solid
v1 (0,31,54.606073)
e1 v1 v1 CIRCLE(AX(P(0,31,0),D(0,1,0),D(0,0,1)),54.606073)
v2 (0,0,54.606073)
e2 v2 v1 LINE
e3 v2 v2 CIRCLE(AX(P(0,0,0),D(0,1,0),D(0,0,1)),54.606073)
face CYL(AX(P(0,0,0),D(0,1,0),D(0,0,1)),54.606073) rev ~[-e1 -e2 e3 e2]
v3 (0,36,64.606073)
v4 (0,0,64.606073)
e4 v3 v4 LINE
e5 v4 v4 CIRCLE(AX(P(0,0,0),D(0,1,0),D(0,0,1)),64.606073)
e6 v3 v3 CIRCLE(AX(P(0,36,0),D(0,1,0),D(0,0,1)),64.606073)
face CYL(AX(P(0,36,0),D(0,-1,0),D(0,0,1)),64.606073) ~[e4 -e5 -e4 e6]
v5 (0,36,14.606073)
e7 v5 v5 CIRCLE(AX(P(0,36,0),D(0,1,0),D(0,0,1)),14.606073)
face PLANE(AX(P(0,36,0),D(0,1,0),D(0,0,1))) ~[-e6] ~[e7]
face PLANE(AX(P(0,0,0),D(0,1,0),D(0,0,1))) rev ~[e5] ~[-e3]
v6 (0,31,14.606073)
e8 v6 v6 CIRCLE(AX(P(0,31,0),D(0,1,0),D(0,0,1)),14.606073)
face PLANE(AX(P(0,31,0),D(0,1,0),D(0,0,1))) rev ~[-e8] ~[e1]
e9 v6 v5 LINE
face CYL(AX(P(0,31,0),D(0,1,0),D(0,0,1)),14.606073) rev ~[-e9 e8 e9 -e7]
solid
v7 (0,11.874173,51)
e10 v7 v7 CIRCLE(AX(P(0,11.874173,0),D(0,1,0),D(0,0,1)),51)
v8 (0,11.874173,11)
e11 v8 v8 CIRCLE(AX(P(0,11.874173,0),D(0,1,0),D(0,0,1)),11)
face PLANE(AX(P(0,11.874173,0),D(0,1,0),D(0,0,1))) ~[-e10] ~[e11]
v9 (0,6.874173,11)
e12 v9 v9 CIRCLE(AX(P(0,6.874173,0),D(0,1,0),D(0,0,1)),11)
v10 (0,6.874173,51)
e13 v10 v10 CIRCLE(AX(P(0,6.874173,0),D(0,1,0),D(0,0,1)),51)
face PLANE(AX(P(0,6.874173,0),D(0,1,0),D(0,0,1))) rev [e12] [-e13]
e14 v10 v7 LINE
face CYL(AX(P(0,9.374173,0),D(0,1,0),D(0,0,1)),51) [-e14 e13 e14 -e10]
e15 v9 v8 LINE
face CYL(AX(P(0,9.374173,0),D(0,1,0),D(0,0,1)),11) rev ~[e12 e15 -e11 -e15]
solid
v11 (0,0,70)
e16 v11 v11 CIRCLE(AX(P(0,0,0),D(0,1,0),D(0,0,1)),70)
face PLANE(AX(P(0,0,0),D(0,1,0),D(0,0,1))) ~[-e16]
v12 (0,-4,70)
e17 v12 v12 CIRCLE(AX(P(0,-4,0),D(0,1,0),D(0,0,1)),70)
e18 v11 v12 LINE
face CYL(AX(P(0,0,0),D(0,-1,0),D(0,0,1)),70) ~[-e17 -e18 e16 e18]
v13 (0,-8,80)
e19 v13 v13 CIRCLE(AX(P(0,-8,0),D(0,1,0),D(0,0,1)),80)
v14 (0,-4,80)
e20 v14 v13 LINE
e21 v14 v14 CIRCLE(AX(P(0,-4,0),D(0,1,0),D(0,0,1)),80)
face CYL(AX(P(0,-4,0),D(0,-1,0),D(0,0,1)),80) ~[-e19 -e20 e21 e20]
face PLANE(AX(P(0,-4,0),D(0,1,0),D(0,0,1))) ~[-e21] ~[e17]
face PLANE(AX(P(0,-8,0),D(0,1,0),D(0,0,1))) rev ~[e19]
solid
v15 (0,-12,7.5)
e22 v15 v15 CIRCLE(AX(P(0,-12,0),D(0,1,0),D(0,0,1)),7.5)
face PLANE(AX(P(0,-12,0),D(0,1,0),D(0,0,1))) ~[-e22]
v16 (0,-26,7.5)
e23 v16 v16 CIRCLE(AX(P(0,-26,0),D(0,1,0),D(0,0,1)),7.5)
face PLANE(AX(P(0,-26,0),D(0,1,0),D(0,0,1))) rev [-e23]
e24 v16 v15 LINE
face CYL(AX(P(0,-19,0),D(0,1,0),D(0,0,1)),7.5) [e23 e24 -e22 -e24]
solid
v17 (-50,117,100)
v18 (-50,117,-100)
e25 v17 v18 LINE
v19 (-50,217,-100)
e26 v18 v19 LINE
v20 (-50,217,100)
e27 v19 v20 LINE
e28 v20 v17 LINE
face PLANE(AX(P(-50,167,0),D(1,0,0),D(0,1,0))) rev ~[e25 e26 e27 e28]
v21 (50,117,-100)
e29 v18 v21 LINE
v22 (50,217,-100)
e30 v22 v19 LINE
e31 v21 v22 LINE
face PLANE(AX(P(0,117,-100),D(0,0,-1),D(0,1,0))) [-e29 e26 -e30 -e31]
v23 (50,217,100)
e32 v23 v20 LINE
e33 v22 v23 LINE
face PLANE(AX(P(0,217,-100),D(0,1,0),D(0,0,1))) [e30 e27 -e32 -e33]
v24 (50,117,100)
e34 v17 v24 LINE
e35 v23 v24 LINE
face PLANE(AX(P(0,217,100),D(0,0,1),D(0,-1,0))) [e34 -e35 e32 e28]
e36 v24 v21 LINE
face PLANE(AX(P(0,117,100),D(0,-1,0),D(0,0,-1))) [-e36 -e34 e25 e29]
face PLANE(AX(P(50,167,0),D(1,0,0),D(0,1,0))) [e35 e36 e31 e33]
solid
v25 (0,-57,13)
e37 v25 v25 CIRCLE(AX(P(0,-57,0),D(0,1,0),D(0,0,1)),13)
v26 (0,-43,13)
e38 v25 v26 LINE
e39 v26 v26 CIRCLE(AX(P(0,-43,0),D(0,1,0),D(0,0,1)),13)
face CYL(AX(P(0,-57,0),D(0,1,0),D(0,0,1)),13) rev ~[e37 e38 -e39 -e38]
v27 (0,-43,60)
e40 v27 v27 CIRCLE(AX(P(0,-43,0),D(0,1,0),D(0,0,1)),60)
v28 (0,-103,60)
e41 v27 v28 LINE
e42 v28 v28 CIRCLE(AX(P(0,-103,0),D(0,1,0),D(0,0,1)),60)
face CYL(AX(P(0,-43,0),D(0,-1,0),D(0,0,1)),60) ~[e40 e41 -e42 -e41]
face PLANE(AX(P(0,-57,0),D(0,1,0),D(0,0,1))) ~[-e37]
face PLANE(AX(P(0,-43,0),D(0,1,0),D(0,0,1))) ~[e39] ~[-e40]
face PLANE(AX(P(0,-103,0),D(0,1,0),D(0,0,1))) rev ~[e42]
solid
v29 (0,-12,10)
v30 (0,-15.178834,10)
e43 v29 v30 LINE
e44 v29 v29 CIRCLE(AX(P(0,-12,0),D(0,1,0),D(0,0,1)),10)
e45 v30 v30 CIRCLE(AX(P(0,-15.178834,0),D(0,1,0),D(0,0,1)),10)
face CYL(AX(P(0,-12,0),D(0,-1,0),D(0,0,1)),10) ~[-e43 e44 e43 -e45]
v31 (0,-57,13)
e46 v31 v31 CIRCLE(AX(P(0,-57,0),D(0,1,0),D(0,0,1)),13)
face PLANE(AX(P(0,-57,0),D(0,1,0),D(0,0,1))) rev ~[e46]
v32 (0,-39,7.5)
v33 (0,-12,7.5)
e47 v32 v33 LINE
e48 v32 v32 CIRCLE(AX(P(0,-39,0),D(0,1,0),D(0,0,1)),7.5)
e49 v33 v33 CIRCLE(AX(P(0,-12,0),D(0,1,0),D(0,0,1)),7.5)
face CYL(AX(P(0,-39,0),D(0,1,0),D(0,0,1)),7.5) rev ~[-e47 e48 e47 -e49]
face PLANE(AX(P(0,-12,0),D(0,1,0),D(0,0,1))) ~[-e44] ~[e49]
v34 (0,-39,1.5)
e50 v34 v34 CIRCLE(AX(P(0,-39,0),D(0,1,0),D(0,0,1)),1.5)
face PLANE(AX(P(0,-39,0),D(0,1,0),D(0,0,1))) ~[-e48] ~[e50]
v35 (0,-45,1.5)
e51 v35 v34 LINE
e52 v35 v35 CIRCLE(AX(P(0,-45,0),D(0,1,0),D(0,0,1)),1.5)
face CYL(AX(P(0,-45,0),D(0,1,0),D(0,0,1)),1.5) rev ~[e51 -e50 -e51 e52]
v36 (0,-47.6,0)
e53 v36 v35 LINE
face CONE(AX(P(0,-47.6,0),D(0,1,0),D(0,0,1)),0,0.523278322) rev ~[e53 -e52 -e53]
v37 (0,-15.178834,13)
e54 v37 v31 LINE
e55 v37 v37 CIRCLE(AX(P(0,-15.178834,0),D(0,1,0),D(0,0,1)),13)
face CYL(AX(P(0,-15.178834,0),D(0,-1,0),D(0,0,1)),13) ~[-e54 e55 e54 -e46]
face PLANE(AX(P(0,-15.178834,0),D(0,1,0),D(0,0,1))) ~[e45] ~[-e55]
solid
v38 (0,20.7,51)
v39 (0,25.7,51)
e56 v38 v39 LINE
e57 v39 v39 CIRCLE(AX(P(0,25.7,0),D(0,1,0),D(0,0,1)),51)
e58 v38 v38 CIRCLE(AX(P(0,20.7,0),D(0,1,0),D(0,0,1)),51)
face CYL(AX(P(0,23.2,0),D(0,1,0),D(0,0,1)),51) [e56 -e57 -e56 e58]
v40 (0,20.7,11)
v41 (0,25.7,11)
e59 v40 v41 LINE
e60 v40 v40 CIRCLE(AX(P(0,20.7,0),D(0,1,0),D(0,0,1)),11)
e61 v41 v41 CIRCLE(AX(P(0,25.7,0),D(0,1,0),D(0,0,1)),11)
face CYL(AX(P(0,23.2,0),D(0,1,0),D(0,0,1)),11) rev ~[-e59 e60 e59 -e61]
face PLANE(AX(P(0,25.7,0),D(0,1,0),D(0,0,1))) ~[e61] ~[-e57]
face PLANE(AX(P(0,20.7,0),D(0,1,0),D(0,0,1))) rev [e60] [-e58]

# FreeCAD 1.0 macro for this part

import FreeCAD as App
import Part
import Sketcher
Q = App.Units.Quantity


def add_polygon(sketch, points):
    """Adds a closed chain of lines whose ends are joined by coincident constraints."""
    first, n = sketch.GeometryCount, len(points)
    for a, b in zip(points, points[1:] + points[:1]):
        sketch.addGeometry(Part.LineSegment(App.Vector(*a, 0), App.Vector(*b, 0)), False)
    for i in range(n):
        sketch.addConstraint(Sketcher.Constraint("Coincident", first + i, 2, first + (i + 1) % n, 1))

doc = App.newDocument("Part")
body = doc.addObject("PartDesign::Body", "Body")

# Sketch on YZ plane
sketch1 = doc.addObject("Sketcher::SketchObject", "Sketch")
body.addObject(sketch1)
sketch1.AttachmentSupport = (doc.YZ_Plane, [""])
sketch1.MapMode = "FlatFace"
add_polygon(sketch1, [(217, 100), (117, 100), (117, -100), (217, -100)])  # lines 0-3
sketch1.addConstraint([
    Sketcher.Constraint("Horizontal", 0),
    Sketcher.Constraint("Vertical", 1),
    Sketcher.Constraint("Horizontal", 2),
    Sketcher.Constraint("Vertical", 3),
    Sketcher.Constraint("DistanceX", 0, 2, 0, 1, Q("100 mm")),
    Sketcher.Constraint("DistanceY", 1, 2, 1, 1, Q("200 mm")),
    Sketcher.Constraint("DistanceX", -1, 1, 0, 2, Q("117 mm")),
    Sketcher.Constraint("DistanceY", -1, 1, 0, 2, Q("100 mm")),
])
pad1 = doc.addObject("PartDesign::Pad", "Pad")
body.addObject(pad1)
pad1.Profile = sketch1
pad1.Length = 100
pad1.Midplane = True
body2 = doc.addObject("PartDesign::Body", "Body001")

# Sketch on YZ plane
sketch2 = doc.addObject("Sketcher::SketchObject", "Sketch001")
body2.addObject(sketch2)
sketch2.AttachmentSupport = (doc.getObject("YZ_Plane001"), [""])
sketch2.MapMode = "FlatFace"
add_polygon(sketch2, [(0, 65), (0, 55), (31, 55), (31, 15), (36, 15), (36, 65)])  # lines 0-5
sketch2.addConstraint([
    Sketcher.Constraint("Vertical", 0),
    Sketcher.Constraint("Horizontal", 1),
    Sketcher.Constraint("Vertical", 2),
    Sketcher.Constraint("Horizontal", 3),
    Sketcher.Constraint("Vertical", 4),
    Sketcher.Constraint("Horizontal", 5),
    Sketcher.Constraint("PointOnObject", 0, 2, -2),
    Sketcher.Constraint("DistanceX", 1, 1, 1, 2, Q("31 mm")),
    Sketcher.Constraint("DistanceX", 3, 1, 3, 2, Q("5 mm")),
    Sketcher.Constraint("DistanceY", 0, 2, 0, 1, Q("10 mm")),
    Sketcher.Constraint("DistanceY", 2, 2, 2, 1, Q("40 mm")),
    Sketcher.Constraint("DistanceY", -1, 1, 0, 2, Q("54.606073 mm")),
])
revolution = doc.addObject("PartDesign::Revolution", "Revolution")
body2.addObject(revolution)
revolution.Profile = sketch2
revolution.ReferenceAxis = (sketch2, ["H_Axis"])
revolution.Angle = 360
body3 = doc.addObject("PartDesign::Body", "Body002")

# Sketch on YZ plane
sketch3 = doc.addObject("Sketcher::SketchObject", "Sketch002")
body3.addObject(sketch3)
sketch3.AttachmentSupport = (doc.getObject("YZ_Plane002"), [""])
sketch3.MapMode = "FlatFace"
add_polygon(sketch3, [(-8, 0), (0, 0), (0, 70), (-4, 70), (-4, 80), (-8, 80)])  # lines 0-5
sketch3.addConstraint([
    Sketcher.Constraint("Horizontal", 0),
    Sketcher.Constraint("Vertical", 1),
    Sketcher.Constraint("Horizontal", 2),
    Sketcher.Constraint("Vertical", 3),
    Sketcher.Constraint("Horizontal", 4),
    Sketcher.Constraint("Vertical", 5),
    Sketcher.Constraint("Coincident", 0, 2, -1, 1),
    Sketcher.Constraint("Equal", 2, 4),
    Sketcher.Constraint("DistanceX", 0, 1, 0, 2, Q("8 mm")),
    Sketcher.Constraint("DistanceY", 1, 1, 1, 2, Q("70 mm")),
    Sketcher.Constraint("DistanceY", 3, 1, 3, 2, Q("10 mm")),
])
revolution2 = doc.addObject("PartDesign::Revolution", "Revolution001")
body3.addObject(revolution2)
revolution2.Profile = sketch3
revolution2.ReferenceAxis = (sketch3, ["H_Axis"])
revolution2.Angle = 360
body4 = doc.addObject("PartDesign::Body", "Body003")

# Sketch on YZ plane
sketch4 = doc.addObject("Sketcher::SketchObject", "Sketch003")
body4.addObject(sketch4)
sketch4.AttachmentSupport = (doc.getObject("YZ_Plane003"), [""])
sketch4.MapMode = "FlatFace"
add_polygon(sketch4, [(-26, 8), (-26, 0), (-12, 0), (-12, 8)])  # lines 0-3
sketch4.addConstraint([
    Sketcher.Constraint("Vertical", 0),
    Sketcher.Constraint("Horizontal", 1),
    Sketcher.Constraint("Vertical", 2),
    Sketcher.Constraint("Horizontal", 3),
    Sketcher.Constraint("PointOnObject", 0, 2, -1),
    Sketcher.Constraint("DistanceX", 1, 1, 1, 2, Q("14 mm")),
    Sketcher.Constraint("DistanceY", 0, 2, 0, 1, Q("7.5 mm")),
    Sketcher.Constraint("DistanceX", 0, 2, -1, 1, Q("26 mm")),
])
revolution3 = doc.addObject("PartDesign::Revolution", "Revolution002")
body4.addObject(revolution3)
revolution3.Profile = sketch4
revolution3.ReferenceAxis = (sketch4, ["H_Axis"])
revolution3.Angle = 360
body5 = doc.addObject("PartDesign::Body", "Body004")

# Sketch on YZ plane
sketch5 = doc.addObject("Sketcher::SketchObject", "Sketch004")
body5.addObject(sketch5)
sketch5.AttachmentSupport = (doc.getObject("YZ_Plane004"), [""])
sketch5.MapMode = "FlatFace"
add_polygon(sketch5, [(-12, 7.5), (-12, 10), (-15.2, 10), (-15.2, 13), (-57, 13), (-57, 0), (-47.6, 0), (-45, 1.5), (-39, 1.5), (-39, 7.5)])  # lines 0-9
sketch5.addConstraint([
    Sketcher.Constraint("Vertical", 0),
    Sketcher.Constraint("Horizontal", 1),
    Sketcher.Constraint("Vertical", 2),
    Sketcher.Constraint("Horizontal", 3),
    Sketcher.Constraint("Vertical", 4),
    Sketcher.Constraint("Horizontal", 5),
    Sketcher.Constraint("Horizontal", 7),
    Sketcher.Constraint("Vertical", 8),
    Sketcher.Constraint("Horizontal", 9),
    Sketcher.Constraint("PointOnObject", 4, 2, -1),
    Sketcher.Constraint("Equal", 7, 8),
    Sketcher.Constraint("DistanceX", 7, 1, 7, 2, Q("6 mm")),
    Sketcher.Constraint("DistanceX", 9, 1, 9, 2, Q("27 mm")),
    Sketcher.Constraint("DistanceY", 2, 1, 2, 2, Q("3 mm")),
    Sketcher.Constraint("DistanceY", 4, 2, 4, 1, Q("13 mm")),
    Sketcher.Constraint("DistanceX", 5, 1, 5, 2, Q("9.4 mm")),
    Sketcher.Constraint("DistanceY", 0, 1, 0, 2, Q("2.5 mm")),
    Sketcher.Constraint("DistanceX", 0, 2, -1, 1, Q("12 mm")),
    Sketcher.Constraint("DistanceX", 3, 2, -1, 1, Q("57 mm")),
    Sketcher.Constraint("DistanceX", 1, 2, 1, 1, Q("3.178834 mm")),
])
revolution4 = doc.addObject("PartDesign::Revolution", "Revolution003")
body5.addObject(revolution4)
revolution4.Profile = sketch5
revolution4.ReferenceAxis = (sketch5, ["H_Axis"])
revolution4.Angle = 360
body6 = doc.addObject("PartDesign::Body", "Body005")

# Sketch on YZ plane
sketch6 = doc.addObject("Sketcher::SketchObject", "Sketch005")
body6.addObject(sketch6)
sketch6.AttachmentSupport = (doc.getObject("YZ_Plane005"), [""])
sketch6.MapMode = "FlatFace"
add_polygon(sketch6, [(-103, 0), (-57, 0), (-57, 13), (-43, 13), (-43, 60), (-103, 60)])  # lines 0-5
sketch6.addConstraint([
    Sketcher.Constraint("Horizontal", 0),
    Sketcher.Constraint("Vertical", 1),
    Sketcher.Constraint("Horizontal", 2),
    Sketcher.Constraint("Vertical", 3),
    Sketcher.Constraint("Horizontal", 4),
    Sketcher.Constraint("Vertical", 5),
    Sketcher.Constraint("PointOnObject", 0, 2, -1),
    Sketcher.Constraint("Equal", 4, 5),
    Sketcher.Constraint("DistanceX", 0, 1, 0, 2, Q("46 mm")),
    Sketcher.Constraint("DistanceX", 2, 1, 2, 2, Q("14 mm")),
    Sketcher.Constraint("DistanceY", 1, 1, 1, 2, Q("13 mm")),
    Sketcher.Constraint("DistanceX", 0, 2, -1, 1, Q("57 mm")),
])
revolution5 = doc.addObject("PartDesign::Revolution", "Revolution004")
body6.addObject(revolution5)
revolution5.Profile = sketch6
revolution5.ReferenceAxis = (sketch6, ["H_Axis"])
revolution5.Angle = 360
body7 = doc.addObject("PartDesign::Body", "Body006")

# Sketch on YZ plane
sketch7 = doc.addObject("Sketcher::SketchObject", "Sketch006")
body7.addObject(sketch7)
sketch7.AttachmentSupport = (doc.getObject("YZ_Plane006"), [""])
sketch7.MapMode = "FlatFace"
add_polygon(sketch7, [(7, 51), (7, 11), (12, 11), (12, 51)])  # lines 0-3
sketch7.addConstraint([
    Sketcher.Constraint("Vertical", 0),
    Sketcher.Constraint("Horizontal", 1),
    Sketcher.Constraint("Vertical", 2),
    Sketcher.Constraint("Horizontal", 3),
    Sketcher.Constraint("DistanceX", 1, 1, 1, 2, Q("5 mm")),
    Sketcher.Constraint("DistanceY", 0, 2, 0, 1, Q("40 mm")),
    Sketcher.Constraint("DistanceY", -1, 1, 0, 2, Q("11 mm")),
    Sketcher.Constraint("DistanceX", -1, 1, 0, 2, Q("6.874173 mm")),
])
revolution6 = doc.addObject("PartDesign::Revolution", "Revolution005")
body7.addObject(revolution6)
revolution6.Profile = sketch7
revolution6.ReferenceAxis = (sketch7, ["H_Axis"])
revolution6.Angle = 360
body8 = doc.addObject("PartDesign::Body", "Body007")

# Sketch on YZ plane
sketch8 = doc.addObject("Sketcher::SketchObject", "Sketch007")
body8.addObject(sketch8)
sketch8.AttachmentSupport = (doc.getObject("YZ_Plane007"), [""])
sketch8.MapMode = "FlatFace"
add_polygon(sketch8, [(21, 51), (21, 11), (26, 11), (26, 51)])  # lines 0-3
sketch8.addConstraint([
    Sketcher.Constraint("Vertical", 0),
    Sketcher.Constraint("Horizontal", 1),
    Sketcher.Constraint("Vertical", 2),
    Sketcher.Constraint("Horizontal", 3),
    Sketcher.Constraint("DistanceX", 1, 1, 1, 2, Q("5 mm")),
    Sketcher.Constraint("DistanceY", 0, 2, 0, 1, Q("40 mm")),
    Sketcher.Constraint("DistanceY", -1, 1, 0, 2, Q("11 mm")),
    Sketcher.Constraint("DistanceX", -1, 1, 0, 2, Q("20.7 mm")),
])
revolution7 = doc.addObject("PartDesign::Revolution", "Revolution006")
body8.addObject(revolution7)
revolution7.Profile = sketch8
revolution7.ReferenceAxis = (sketch8, ["H_Axis"])
revolution7.Angle = 360

doc.recompute()
